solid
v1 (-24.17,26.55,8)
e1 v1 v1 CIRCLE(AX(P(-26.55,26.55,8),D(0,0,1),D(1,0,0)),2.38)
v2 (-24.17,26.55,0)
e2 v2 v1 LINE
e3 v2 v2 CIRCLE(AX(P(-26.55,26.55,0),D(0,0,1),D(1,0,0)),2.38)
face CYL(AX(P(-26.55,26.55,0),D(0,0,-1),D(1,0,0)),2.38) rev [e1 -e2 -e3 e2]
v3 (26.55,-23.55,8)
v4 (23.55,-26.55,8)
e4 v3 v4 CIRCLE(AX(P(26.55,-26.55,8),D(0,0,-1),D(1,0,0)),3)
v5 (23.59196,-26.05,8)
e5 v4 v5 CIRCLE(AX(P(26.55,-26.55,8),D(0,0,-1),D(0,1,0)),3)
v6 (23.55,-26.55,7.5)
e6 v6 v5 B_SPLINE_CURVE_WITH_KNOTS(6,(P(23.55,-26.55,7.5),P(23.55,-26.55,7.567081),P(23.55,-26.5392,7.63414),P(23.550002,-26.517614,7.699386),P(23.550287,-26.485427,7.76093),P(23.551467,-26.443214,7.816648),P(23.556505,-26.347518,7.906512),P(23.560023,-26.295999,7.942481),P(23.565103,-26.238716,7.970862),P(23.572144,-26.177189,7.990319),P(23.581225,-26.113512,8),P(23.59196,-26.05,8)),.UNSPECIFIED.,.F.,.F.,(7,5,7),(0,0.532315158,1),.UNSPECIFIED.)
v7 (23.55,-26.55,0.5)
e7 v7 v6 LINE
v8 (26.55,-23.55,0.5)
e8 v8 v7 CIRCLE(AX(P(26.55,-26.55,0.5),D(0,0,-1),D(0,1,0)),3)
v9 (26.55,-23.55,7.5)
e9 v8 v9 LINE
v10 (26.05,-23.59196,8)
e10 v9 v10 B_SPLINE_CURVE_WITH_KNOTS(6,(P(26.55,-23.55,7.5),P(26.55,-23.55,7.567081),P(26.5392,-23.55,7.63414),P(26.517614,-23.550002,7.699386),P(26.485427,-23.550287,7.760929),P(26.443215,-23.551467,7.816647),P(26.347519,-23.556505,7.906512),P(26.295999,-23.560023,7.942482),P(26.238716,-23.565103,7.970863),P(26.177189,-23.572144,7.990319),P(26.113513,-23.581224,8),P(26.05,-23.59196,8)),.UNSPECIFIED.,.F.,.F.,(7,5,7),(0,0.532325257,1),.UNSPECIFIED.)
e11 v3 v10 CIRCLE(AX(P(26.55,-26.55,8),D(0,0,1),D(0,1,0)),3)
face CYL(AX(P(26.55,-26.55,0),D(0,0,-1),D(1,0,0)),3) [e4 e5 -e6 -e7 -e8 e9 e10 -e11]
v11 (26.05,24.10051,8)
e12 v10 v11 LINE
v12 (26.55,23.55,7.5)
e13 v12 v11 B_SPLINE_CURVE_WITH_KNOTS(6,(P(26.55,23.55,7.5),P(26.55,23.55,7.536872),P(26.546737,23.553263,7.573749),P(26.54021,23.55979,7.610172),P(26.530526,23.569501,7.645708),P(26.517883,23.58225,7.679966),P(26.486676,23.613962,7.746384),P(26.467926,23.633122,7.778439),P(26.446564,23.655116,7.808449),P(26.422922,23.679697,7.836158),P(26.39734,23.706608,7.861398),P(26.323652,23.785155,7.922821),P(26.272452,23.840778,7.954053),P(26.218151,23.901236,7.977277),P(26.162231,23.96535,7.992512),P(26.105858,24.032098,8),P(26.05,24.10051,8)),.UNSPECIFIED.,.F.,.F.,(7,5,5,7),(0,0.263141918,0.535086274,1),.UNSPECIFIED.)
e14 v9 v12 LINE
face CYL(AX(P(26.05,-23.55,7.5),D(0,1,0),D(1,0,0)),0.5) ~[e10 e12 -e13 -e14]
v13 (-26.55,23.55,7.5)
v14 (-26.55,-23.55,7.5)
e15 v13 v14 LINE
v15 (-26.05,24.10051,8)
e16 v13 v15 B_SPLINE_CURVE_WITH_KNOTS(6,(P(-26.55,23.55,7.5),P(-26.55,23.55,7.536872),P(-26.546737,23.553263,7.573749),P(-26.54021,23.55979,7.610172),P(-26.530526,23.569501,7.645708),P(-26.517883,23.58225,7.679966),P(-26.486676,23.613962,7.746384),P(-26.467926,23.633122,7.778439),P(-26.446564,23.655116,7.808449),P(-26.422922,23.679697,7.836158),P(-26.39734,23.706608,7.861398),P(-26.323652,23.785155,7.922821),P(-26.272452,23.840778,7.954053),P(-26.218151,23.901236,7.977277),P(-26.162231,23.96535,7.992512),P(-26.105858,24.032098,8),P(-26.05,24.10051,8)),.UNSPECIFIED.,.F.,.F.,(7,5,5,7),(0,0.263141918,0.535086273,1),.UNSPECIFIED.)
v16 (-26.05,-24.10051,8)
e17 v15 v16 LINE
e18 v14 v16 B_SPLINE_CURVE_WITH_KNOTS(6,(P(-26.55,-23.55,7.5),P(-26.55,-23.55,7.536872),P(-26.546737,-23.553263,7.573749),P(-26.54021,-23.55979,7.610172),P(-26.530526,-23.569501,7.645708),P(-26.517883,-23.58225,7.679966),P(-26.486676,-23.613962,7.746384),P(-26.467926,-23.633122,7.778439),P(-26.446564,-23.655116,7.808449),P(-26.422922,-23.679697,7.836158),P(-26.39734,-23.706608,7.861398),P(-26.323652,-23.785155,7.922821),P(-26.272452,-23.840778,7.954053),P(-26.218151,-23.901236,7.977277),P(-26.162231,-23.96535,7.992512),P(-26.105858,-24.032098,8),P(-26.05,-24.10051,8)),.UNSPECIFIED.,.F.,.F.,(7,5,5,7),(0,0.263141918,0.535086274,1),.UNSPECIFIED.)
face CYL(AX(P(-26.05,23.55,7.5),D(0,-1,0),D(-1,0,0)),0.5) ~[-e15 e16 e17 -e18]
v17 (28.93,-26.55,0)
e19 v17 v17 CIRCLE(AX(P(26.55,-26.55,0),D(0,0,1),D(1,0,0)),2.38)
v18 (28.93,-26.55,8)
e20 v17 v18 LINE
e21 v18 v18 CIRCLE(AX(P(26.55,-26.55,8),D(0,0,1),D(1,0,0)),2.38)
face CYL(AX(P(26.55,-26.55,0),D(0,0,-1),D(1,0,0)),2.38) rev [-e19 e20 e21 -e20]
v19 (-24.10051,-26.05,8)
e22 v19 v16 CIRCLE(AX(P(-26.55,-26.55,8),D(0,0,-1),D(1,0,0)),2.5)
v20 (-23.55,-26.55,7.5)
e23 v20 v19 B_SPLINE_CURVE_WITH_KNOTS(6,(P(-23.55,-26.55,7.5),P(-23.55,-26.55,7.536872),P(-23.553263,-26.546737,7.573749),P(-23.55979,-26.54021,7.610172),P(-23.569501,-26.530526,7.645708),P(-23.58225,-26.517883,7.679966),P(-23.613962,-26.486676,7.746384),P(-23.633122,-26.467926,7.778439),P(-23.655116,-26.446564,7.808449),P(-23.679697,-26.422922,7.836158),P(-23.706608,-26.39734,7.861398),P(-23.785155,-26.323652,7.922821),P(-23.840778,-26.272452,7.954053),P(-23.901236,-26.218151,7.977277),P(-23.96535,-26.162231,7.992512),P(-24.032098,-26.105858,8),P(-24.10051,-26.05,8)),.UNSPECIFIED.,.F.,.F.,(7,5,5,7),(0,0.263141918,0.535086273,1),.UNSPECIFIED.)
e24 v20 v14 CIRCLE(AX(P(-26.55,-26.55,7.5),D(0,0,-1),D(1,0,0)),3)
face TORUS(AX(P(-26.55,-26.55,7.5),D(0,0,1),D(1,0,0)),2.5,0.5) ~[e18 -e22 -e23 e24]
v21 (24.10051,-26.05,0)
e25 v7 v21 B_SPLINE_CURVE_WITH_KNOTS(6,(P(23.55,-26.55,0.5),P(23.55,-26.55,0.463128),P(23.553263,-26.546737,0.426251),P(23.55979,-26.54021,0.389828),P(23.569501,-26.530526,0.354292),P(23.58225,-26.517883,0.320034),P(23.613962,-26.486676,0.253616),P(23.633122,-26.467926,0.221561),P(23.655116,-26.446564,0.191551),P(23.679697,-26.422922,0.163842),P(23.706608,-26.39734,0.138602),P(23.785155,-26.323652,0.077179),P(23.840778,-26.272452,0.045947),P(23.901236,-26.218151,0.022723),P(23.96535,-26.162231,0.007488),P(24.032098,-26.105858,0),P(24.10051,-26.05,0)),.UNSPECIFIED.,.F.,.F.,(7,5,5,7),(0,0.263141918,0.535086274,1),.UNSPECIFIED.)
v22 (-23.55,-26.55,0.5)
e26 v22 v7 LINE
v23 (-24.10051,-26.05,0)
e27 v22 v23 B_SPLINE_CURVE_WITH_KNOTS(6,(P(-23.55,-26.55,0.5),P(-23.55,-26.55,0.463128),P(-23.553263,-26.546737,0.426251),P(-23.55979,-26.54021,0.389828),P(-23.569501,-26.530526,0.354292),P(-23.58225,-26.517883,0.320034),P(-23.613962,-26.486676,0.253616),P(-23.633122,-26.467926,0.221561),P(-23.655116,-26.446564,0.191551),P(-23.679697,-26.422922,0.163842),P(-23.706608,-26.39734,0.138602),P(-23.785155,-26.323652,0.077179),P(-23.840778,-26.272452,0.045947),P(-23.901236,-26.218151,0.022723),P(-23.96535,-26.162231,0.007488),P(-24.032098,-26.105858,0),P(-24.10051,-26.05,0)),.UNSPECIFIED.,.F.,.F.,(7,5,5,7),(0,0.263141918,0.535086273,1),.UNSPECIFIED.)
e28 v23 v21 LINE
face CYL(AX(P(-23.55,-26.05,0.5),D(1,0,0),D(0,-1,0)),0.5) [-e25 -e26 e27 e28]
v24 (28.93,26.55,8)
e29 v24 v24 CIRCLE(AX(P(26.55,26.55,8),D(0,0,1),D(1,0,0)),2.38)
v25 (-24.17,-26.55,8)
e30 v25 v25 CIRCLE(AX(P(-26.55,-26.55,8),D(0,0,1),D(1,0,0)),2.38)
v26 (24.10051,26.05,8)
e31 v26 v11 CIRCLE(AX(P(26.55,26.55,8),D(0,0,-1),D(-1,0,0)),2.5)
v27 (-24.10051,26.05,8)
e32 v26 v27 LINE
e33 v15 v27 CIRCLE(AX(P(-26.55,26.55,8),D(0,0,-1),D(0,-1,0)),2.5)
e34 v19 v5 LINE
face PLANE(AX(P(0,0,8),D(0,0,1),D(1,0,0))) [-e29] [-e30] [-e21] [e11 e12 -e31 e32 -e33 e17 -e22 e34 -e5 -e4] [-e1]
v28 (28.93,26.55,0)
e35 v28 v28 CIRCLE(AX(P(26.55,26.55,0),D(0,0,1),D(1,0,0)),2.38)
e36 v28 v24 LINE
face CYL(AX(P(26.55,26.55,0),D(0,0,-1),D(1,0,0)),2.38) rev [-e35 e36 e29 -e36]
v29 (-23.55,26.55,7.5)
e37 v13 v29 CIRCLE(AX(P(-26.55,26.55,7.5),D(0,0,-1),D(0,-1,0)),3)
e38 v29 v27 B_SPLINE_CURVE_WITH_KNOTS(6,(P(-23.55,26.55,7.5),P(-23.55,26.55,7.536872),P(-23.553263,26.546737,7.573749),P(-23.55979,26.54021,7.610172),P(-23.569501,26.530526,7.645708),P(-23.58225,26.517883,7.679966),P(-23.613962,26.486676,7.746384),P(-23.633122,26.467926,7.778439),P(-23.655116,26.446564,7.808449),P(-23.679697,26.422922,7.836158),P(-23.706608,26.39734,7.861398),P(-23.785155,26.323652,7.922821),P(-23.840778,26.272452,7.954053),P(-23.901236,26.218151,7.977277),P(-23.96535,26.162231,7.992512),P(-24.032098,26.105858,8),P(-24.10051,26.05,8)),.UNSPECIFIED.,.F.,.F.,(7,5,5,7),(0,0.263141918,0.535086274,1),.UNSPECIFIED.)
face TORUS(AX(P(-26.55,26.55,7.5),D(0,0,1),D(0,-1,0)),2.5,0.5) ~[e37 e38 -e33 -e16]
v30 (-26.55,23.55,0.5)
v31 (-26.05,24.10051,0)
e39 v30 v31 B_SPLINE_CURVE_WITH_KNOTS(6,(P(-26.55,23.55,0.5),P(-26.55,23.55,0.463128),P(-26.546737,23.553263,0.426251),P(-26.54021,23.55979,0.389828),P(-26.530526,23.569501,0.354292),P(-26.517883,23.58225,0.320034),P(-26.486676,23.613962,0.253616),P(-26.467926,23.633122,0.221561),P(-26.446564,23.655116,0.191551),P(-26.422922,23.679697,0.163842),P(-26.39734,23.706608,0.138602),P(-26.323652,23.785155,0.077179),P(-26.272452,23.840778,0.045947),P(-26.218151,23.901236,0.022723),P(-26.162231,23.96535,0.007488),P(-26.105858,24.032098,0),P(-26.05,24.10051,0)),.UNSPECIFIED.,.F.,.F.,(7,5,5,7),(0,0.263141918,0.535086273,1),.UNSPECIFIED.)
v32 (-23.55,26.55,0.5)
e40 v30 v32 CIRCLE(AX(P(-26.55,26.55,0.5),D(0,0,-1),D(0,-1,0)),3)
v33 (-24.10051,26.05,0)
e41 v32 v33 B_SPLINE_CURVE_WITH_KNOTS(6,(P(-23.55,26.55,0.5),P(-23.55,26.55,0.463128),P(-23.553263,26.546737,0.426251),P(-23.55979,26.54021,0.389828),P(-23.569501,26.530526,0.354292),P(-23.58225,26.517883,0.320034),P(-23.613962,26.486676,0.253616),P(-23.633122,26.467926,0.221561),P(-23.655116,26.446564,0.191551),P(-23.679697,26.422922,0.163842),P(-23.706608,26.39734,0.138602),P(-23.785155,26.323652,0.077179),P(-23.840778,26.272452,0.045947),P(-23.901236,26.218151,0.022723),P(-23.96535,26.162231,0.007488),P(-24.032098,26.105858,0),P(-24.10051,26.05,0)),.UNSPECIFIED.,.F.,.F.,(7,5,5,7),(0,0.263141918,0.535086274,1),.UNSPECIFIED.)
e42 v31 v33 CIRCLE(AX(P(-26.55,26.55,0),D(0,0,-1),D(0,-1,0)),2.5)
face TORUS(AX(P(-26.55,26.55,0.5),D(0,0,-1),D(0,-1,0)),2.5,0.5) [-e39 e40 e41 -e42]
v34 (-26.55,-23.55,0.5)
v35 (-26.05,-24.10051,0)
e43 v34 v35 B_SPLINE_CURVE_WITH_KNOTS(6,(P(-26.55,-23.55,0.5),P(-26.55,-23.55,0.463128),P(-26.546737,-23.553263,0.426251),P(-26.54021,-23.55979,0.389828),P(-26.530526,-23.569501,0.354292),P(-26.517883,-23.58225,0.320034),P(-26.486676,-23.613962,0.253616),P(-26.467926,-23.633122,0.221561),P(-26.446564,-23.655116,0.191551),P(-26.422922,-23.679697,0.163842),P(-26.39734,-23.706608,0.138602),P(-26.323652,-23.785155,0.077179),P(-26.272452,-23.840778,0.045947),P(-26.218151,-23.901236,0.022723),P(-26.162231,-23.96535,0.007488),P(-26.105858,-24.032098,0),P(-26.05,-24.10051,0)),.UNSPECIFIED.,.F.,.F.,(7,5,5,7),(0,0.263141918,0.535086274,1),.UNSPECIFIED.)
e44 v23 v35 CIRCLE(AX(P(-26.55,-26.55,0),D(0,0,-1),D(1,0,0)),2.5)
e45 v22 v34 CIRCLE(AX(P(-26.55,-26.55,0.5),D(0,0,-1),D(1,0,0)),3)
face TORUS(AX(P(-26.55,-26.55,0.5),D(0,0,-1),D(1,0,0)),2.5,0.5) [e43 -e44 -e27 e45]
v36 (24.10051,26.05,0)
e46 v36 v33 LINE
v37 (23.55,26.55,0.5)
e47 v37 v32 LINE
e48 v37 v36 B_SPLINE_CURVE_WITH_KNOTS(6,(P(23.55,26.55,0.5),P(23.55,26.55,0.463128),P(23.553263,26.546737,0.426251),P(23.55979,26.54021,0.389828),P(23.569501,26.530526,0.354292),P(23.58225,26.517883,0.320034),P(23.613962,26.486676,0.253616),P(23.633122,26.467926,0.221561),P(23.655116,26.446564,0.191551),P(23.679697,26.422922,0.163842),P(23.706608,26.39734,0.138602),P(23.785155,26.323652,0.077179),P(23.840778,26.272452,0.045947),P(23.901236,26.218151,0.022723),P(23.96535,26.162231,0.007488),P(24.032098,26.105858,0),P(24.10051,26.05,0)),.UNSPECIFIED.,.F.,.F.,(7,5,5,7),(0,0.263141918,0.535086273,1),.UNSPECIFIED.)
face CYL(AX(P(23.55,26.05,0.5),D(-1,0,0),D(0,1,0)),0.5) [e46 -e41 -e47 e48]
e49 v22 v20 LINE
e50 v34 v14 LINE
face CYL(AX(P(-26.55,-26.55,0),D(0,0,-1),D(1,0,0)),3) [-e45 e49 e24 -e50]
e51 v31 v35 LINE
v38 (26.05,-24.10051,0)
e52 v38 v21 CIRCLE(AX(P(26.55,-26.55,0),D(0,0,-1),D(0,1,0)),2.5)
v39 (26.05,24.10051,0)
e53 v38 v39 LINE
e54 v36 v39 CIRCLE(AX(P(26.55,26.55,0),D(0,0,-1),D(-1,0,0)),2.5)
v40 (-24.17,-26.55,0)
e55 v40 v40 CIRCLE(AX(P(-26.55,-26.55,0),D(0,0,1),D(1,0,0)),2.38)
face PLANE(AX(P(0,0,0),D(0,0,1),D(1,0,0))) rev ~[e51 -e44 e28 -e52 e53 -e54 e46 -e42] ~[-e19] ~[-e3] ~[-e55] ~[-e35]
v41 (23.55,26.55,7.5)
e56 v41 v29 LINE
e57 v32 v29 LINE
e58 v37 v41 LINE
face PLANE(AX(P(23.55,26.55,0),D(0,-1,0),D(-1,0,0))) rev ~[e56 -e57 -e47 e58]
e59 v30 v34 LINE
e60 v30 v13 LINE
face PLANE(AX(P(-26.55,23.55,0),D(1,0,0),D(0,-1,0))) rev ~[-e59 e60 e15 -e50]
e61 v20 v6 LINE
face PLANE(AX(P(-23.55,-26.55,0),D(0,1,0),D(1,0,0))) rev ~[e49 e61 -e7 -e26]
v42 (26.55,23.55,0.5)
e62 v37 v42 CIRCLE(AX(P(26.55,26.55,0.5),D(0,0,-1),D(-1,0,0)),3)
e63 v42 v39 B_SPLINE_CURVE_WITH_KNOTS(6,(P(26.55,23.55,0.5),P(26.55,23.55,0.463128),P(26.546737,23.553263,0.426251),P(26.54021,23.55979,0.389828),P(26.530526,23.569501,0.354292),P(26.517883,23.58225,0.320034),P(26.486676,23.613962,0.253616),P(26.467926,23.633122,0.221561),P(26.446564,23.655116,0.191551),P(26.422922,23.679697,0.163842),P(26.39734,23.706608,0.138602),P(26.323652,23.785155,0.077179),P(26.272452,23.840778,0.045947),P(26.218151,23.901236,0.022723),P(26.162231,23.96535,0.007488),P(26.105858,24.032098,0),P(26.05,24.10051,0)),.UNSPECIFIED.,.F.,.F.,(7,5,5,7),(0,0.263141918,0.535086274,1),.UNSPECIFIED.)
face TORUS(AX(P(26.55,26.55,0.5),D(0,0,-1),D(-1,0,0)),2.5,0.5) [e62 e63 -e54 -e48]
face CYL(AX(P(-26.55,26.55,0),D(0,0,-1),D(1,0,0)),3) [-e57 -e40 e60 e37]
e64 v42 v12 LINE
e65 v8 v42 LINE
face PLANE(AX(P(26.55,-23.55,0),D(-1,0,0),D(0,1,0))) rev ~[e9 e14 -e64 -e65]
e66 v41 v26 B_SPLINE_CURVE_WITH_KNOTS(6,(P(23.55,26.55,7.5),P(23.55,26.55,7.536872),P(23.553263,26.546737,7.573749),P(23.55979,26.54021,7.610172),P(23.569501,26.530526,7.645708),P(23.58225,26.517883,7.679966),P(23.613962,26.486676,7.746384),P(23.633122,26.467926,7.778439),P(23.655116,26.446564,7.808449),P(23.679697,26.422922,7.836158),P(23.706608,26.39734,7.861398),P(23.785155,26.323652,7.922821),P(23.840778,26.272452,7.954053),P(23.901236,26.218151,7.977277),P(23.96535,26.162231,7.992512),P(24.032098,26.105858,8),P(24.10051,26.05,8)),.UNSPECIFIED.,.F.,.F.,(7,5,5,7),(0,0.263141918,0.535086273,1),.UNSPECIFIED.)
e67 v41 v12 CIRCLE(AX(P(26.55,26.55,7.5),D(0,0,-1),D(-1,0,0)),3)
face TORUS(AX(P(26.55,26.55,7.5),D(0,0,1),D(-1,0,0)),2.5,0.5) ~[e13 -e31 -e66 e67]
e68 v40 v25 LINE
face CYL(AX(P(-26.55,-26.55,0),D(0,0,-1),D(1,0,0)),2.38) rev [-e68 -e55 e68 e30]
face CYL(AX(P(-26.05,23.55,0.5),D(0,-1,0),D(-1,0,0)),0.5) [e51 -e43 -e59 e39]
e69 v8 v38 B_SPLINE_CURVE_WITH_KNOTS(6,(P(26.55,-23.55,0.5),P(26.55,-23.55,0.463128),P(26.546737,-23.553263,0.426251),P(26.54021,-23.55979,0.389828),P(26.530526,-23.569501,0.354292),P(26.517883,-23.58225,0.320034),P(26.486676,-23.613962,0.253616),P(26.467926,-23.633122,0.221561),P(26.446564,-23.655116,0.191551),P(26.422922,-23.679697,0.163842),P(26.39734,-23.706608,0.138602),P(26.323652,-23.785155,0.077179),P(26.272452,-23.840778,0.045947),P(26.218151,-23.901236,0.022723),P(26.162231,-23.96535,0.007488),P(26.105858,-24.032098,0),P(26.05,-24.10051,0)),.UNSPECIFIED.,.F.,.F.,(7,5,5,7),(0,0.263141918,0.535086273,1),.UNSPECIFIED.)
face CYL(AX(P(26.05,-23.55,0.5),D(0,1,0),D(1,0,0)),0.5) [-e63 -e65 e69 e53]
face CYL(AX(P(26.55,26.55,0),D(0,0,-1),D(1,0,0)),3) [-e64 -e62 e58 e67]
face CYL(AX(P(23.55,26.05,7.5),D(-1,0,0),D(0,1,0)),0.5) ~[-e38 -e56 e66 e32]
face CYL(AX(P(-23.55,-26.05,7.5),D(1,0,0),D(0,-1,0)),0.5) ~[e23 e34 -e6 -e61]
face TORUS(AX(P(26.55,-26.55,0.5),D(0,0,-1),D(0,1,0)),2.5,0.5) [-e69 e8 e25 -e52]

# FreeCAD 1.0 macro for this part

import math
import FreeCAD as App
import Part
import Sketcher


def edges_at(feature, points):
    """Names of the edges that pass closest to the given points."""
    edges = feature.Shape.Edges
    near = lambda p: min(range(len(edges)), key=lambda i: edges[i].distToShape(Part.Vertex(*p))[0])
    return sorted({f"Edge{near(p) + 1}" for p in points})

doc = App.newDocument("Part")
params = doc.addObject("Spreadsheet::Sheet", "Params")
for row, (alias, value) in enumerate([
    ("sketch1_radius", "3 mm"),
    ("sketch1_diameter", "4.76 mm"),
    ("sketch1_width", "47.1 mm"),
    ("pad1_length", "8 mm"),
    ("fillet_radius", "0.5 mm"),
], start=1):
    params.set(f"A{row}", alias)
    params.set(f"B{row}", "=" + value)
    params.setAlias(f"B{row}", alias)

body = doc.addObject("PartDesign::Body", "Body")

# Sketch on XY plane
sketch1 = doc.addObject("Sketcher::SketchObject", "Sketch")
body.addObject(sketch1)
sketch1.AttachmentSupport = (doc.XY_Plane, [""])
sketch1.MapMode = "FlatFace"
sketch1.addGeometry(Part.ArcOfCircle(Part.Circle(App.Vector(-26.55, 26.55, 0), App.Vector(0, 0, 1), 3), math.radians(0), math.radians(270)), False)
sketch1.addGeometry(Part.LineSegment(App.Vector(-26.55, 23.55, 0), App.Vector(-26.55, -23.55, 0)), False)
sketch1.addGeometry(Part.ArcOfCircle(Part.Circle(App.Vector(-26.55, -26.55, 0), App.Vector(0, 0, 1), 3), math.radians(90), math.radians(360)), False)
sketch1.addGeometry(Part.LineSegment(App.Vector(-23.55, -26.55, 0), App.Vector(23.55, -26.55, 0)), False)
sketch1.addGeometry(Part.ArcOfCircle(Part.Circle(App.Vector(26.55, -26.55, 0), App.Vector(0, 0, 1), 3), math.radians(180), math.radians(450)), False)
sketch1.addGeometry(Part.LineSegment(App.Vector(26.55, -23.55, 0), App.Vector(26.55, 23.55, 0)), False)
sketch1.addGeometry(Part.ArcOfCircle(Part.Circle(App.Vector(26.55, 26.55, 0), App.Vector(0, 0, 1), 3), math.radians(-90), math.radians(180)), False)
sketch1.addGeometry(Part.LineSegment(App.Vector(23.55, 26.55, 0), App.Vector(-23.55, 26.55, 0)), False)
sketch1.addGeometry(Part.Circle(App.Vector(-26.55, -26.55, 0), App.Vector(0, 0, 1), 2.38), False)
sketch1.addGeometry(Part.Circle(App.Vector(26.55, -26.55, 0), App.Vector(0, 0, 1), 2.38), False)
sketch1.addGeometry(Part.Circle(App.Vector(-26.55, 26.55, 0), App.Vector(0, 0, 1), 2.38), False)
sketch1.addGeometry(Part.Circle(App.Vector(26.55, 26.55, 0), App.Vector(0, 0, 1), 2.38), False)
sketch1.addConstraint(Sketcher.Constraint("Coincident", 0, 2, 1, 1))
sketch1.addConstraint(Sketcher.Constraint("Coincident", 1, 2, 2, 1))
sketch1.addConstraint(Sketcher.Constraint("Coincident", 2, 2, 3, 1))
sketch1.addConstraint(Sketcher.Constraint("Coincident", 3, 2, 4, 1))
sketch1.addConstraint(Sketcher.Constraint("Coincident", 4, 2, 5, 1))
sketch1.addConstraint(Sketcher.Constraint("Coincident", 5, 2, 6, 1))
sketch1.addConstraint(Sketcher.Constraint("Coincident", 6, 2, 7, 1))
sketch1.addConstraint(Sketcher.Constraint("Coincident", 7, 2, 0, 1))
sketch1.addConstraint(Sketcher.Constraint("Vertical", 1))
sketch1.addConstraint(Sketcher.Constraint("Horizontal", 3))
sketch1.addConstraint(Sketcher.Constraint("Vertical", 5))
sketch1.addConstraint(Sketcher.Constraint("Horizontal", 7))
sketch1.addConstraint(Sketcher.Constraint("Coincident", 8, 3, 2, 3))
sketch1.addConstraint(Sketcher.Constraint("Coincident", 9, 3, 4, 3))
sketch1.addConstraint(Sketcher.Constraint("Coincident", 10, 3, 0, 3))
sketch1.addConstraint(Sketcher.Constraint("Coincident", 11, 3, 6, 3))
sketch1.addConstraint(Sketcher.Constraint("Equal", 0, 2))
sketch1.addConstraint(Sketcher.Constraint("Equal", 2, 4))
sketch1.addConstraint(Sketcher.Constraint("Equal", 4, 6))
sketch1.addConstraint(Sketcher.Constraint("Equal", 8, 9))
sketch1.addConstraint(Sketcher.Constraint("Equal", 9, 10))
sketch1.addConstraint(Sketcher.Constraint("Equal", 10, 11))
sketch1.addConstraint(Sketcher.Constraint("Symmetric", 0, 3, 4, 3, -1, 1))
sketch1.addConstraint(Sketcher.Constraint("Symmetric", 2, 3, 6, 3, -1, 1))
sketch1.addConstraint(Sketcher.Constraint("Symmetric", 2, 3, 4, 3, -2))
sketch1.addConstraint(Sketcher.Constraint("Horizontal", 9, 3, 2, 2))
sketch1.addConstraint(Sketcher.Constraint("Horizontal", 11, 3, 6, 2))
sketch1.addConstraint(Sketcher.Constraint("Vertical", 10, 3, 0, 2))
sketch1.addConstraint(Sketcher.Constraint("Vertical", 11, 3, 4, 2))
sketch1.addConstraint(Sketcher.Constraint("Equal", 7, 1))
sketch1.addConstraint(Sketcher.Constraint("Radius", 0, 3.0))
sketch1.addConstraint(Sketcher.Constraint("Diameter", 8, 4.76))
sketch1.addConstraint(Sketcher.Constraint("DistanceX", 3, 1, 3, 2, 47.1))
sketch1.setExpression("Constraints[30]", "Params.sketch1_radius")
sketch1.setExpression("Constraints[31]", "Params.sketch1_diameter")
sketch1.setExpression("Constraints[32]", "Params.sketch1_width")
pad1 = doc.addObject("PartDesign::Pad", "Pad")
body.addObject(pad1)
pad1.Profile = sketch1
pad1.setExpression("Length", "Params.pad1_length")
doc.recompute()

fillet = doc.addObject("PartDesign::Fillet", "Fillet")
body.addObject(fillet)
fillet.Base = (pad1, edges_at(pad1, [
    (0, -26.55, 8),
    (-28.671, -28.671, 8),
    (-26.55, 0, 8),
    (-28.671, 28.671, 8),
    (0, 26.55, 8),
    (28.671, 28.671, 8),
    (26.55, 0, 8),
    (0, -26.55, 0),
    (-28.671, -28.671, 0),
    (-26.55, 0, 0),
    (28.671, -28.671, 0),
    (0, 26.55, 0),
    (-28.671, 28.671, 0),
    (28.671, 28.671, 0),
    (26.55, 0, 0),
]))
fillet.setExpression("Radius", "Params.fillet_radius")

doc.recompute()
